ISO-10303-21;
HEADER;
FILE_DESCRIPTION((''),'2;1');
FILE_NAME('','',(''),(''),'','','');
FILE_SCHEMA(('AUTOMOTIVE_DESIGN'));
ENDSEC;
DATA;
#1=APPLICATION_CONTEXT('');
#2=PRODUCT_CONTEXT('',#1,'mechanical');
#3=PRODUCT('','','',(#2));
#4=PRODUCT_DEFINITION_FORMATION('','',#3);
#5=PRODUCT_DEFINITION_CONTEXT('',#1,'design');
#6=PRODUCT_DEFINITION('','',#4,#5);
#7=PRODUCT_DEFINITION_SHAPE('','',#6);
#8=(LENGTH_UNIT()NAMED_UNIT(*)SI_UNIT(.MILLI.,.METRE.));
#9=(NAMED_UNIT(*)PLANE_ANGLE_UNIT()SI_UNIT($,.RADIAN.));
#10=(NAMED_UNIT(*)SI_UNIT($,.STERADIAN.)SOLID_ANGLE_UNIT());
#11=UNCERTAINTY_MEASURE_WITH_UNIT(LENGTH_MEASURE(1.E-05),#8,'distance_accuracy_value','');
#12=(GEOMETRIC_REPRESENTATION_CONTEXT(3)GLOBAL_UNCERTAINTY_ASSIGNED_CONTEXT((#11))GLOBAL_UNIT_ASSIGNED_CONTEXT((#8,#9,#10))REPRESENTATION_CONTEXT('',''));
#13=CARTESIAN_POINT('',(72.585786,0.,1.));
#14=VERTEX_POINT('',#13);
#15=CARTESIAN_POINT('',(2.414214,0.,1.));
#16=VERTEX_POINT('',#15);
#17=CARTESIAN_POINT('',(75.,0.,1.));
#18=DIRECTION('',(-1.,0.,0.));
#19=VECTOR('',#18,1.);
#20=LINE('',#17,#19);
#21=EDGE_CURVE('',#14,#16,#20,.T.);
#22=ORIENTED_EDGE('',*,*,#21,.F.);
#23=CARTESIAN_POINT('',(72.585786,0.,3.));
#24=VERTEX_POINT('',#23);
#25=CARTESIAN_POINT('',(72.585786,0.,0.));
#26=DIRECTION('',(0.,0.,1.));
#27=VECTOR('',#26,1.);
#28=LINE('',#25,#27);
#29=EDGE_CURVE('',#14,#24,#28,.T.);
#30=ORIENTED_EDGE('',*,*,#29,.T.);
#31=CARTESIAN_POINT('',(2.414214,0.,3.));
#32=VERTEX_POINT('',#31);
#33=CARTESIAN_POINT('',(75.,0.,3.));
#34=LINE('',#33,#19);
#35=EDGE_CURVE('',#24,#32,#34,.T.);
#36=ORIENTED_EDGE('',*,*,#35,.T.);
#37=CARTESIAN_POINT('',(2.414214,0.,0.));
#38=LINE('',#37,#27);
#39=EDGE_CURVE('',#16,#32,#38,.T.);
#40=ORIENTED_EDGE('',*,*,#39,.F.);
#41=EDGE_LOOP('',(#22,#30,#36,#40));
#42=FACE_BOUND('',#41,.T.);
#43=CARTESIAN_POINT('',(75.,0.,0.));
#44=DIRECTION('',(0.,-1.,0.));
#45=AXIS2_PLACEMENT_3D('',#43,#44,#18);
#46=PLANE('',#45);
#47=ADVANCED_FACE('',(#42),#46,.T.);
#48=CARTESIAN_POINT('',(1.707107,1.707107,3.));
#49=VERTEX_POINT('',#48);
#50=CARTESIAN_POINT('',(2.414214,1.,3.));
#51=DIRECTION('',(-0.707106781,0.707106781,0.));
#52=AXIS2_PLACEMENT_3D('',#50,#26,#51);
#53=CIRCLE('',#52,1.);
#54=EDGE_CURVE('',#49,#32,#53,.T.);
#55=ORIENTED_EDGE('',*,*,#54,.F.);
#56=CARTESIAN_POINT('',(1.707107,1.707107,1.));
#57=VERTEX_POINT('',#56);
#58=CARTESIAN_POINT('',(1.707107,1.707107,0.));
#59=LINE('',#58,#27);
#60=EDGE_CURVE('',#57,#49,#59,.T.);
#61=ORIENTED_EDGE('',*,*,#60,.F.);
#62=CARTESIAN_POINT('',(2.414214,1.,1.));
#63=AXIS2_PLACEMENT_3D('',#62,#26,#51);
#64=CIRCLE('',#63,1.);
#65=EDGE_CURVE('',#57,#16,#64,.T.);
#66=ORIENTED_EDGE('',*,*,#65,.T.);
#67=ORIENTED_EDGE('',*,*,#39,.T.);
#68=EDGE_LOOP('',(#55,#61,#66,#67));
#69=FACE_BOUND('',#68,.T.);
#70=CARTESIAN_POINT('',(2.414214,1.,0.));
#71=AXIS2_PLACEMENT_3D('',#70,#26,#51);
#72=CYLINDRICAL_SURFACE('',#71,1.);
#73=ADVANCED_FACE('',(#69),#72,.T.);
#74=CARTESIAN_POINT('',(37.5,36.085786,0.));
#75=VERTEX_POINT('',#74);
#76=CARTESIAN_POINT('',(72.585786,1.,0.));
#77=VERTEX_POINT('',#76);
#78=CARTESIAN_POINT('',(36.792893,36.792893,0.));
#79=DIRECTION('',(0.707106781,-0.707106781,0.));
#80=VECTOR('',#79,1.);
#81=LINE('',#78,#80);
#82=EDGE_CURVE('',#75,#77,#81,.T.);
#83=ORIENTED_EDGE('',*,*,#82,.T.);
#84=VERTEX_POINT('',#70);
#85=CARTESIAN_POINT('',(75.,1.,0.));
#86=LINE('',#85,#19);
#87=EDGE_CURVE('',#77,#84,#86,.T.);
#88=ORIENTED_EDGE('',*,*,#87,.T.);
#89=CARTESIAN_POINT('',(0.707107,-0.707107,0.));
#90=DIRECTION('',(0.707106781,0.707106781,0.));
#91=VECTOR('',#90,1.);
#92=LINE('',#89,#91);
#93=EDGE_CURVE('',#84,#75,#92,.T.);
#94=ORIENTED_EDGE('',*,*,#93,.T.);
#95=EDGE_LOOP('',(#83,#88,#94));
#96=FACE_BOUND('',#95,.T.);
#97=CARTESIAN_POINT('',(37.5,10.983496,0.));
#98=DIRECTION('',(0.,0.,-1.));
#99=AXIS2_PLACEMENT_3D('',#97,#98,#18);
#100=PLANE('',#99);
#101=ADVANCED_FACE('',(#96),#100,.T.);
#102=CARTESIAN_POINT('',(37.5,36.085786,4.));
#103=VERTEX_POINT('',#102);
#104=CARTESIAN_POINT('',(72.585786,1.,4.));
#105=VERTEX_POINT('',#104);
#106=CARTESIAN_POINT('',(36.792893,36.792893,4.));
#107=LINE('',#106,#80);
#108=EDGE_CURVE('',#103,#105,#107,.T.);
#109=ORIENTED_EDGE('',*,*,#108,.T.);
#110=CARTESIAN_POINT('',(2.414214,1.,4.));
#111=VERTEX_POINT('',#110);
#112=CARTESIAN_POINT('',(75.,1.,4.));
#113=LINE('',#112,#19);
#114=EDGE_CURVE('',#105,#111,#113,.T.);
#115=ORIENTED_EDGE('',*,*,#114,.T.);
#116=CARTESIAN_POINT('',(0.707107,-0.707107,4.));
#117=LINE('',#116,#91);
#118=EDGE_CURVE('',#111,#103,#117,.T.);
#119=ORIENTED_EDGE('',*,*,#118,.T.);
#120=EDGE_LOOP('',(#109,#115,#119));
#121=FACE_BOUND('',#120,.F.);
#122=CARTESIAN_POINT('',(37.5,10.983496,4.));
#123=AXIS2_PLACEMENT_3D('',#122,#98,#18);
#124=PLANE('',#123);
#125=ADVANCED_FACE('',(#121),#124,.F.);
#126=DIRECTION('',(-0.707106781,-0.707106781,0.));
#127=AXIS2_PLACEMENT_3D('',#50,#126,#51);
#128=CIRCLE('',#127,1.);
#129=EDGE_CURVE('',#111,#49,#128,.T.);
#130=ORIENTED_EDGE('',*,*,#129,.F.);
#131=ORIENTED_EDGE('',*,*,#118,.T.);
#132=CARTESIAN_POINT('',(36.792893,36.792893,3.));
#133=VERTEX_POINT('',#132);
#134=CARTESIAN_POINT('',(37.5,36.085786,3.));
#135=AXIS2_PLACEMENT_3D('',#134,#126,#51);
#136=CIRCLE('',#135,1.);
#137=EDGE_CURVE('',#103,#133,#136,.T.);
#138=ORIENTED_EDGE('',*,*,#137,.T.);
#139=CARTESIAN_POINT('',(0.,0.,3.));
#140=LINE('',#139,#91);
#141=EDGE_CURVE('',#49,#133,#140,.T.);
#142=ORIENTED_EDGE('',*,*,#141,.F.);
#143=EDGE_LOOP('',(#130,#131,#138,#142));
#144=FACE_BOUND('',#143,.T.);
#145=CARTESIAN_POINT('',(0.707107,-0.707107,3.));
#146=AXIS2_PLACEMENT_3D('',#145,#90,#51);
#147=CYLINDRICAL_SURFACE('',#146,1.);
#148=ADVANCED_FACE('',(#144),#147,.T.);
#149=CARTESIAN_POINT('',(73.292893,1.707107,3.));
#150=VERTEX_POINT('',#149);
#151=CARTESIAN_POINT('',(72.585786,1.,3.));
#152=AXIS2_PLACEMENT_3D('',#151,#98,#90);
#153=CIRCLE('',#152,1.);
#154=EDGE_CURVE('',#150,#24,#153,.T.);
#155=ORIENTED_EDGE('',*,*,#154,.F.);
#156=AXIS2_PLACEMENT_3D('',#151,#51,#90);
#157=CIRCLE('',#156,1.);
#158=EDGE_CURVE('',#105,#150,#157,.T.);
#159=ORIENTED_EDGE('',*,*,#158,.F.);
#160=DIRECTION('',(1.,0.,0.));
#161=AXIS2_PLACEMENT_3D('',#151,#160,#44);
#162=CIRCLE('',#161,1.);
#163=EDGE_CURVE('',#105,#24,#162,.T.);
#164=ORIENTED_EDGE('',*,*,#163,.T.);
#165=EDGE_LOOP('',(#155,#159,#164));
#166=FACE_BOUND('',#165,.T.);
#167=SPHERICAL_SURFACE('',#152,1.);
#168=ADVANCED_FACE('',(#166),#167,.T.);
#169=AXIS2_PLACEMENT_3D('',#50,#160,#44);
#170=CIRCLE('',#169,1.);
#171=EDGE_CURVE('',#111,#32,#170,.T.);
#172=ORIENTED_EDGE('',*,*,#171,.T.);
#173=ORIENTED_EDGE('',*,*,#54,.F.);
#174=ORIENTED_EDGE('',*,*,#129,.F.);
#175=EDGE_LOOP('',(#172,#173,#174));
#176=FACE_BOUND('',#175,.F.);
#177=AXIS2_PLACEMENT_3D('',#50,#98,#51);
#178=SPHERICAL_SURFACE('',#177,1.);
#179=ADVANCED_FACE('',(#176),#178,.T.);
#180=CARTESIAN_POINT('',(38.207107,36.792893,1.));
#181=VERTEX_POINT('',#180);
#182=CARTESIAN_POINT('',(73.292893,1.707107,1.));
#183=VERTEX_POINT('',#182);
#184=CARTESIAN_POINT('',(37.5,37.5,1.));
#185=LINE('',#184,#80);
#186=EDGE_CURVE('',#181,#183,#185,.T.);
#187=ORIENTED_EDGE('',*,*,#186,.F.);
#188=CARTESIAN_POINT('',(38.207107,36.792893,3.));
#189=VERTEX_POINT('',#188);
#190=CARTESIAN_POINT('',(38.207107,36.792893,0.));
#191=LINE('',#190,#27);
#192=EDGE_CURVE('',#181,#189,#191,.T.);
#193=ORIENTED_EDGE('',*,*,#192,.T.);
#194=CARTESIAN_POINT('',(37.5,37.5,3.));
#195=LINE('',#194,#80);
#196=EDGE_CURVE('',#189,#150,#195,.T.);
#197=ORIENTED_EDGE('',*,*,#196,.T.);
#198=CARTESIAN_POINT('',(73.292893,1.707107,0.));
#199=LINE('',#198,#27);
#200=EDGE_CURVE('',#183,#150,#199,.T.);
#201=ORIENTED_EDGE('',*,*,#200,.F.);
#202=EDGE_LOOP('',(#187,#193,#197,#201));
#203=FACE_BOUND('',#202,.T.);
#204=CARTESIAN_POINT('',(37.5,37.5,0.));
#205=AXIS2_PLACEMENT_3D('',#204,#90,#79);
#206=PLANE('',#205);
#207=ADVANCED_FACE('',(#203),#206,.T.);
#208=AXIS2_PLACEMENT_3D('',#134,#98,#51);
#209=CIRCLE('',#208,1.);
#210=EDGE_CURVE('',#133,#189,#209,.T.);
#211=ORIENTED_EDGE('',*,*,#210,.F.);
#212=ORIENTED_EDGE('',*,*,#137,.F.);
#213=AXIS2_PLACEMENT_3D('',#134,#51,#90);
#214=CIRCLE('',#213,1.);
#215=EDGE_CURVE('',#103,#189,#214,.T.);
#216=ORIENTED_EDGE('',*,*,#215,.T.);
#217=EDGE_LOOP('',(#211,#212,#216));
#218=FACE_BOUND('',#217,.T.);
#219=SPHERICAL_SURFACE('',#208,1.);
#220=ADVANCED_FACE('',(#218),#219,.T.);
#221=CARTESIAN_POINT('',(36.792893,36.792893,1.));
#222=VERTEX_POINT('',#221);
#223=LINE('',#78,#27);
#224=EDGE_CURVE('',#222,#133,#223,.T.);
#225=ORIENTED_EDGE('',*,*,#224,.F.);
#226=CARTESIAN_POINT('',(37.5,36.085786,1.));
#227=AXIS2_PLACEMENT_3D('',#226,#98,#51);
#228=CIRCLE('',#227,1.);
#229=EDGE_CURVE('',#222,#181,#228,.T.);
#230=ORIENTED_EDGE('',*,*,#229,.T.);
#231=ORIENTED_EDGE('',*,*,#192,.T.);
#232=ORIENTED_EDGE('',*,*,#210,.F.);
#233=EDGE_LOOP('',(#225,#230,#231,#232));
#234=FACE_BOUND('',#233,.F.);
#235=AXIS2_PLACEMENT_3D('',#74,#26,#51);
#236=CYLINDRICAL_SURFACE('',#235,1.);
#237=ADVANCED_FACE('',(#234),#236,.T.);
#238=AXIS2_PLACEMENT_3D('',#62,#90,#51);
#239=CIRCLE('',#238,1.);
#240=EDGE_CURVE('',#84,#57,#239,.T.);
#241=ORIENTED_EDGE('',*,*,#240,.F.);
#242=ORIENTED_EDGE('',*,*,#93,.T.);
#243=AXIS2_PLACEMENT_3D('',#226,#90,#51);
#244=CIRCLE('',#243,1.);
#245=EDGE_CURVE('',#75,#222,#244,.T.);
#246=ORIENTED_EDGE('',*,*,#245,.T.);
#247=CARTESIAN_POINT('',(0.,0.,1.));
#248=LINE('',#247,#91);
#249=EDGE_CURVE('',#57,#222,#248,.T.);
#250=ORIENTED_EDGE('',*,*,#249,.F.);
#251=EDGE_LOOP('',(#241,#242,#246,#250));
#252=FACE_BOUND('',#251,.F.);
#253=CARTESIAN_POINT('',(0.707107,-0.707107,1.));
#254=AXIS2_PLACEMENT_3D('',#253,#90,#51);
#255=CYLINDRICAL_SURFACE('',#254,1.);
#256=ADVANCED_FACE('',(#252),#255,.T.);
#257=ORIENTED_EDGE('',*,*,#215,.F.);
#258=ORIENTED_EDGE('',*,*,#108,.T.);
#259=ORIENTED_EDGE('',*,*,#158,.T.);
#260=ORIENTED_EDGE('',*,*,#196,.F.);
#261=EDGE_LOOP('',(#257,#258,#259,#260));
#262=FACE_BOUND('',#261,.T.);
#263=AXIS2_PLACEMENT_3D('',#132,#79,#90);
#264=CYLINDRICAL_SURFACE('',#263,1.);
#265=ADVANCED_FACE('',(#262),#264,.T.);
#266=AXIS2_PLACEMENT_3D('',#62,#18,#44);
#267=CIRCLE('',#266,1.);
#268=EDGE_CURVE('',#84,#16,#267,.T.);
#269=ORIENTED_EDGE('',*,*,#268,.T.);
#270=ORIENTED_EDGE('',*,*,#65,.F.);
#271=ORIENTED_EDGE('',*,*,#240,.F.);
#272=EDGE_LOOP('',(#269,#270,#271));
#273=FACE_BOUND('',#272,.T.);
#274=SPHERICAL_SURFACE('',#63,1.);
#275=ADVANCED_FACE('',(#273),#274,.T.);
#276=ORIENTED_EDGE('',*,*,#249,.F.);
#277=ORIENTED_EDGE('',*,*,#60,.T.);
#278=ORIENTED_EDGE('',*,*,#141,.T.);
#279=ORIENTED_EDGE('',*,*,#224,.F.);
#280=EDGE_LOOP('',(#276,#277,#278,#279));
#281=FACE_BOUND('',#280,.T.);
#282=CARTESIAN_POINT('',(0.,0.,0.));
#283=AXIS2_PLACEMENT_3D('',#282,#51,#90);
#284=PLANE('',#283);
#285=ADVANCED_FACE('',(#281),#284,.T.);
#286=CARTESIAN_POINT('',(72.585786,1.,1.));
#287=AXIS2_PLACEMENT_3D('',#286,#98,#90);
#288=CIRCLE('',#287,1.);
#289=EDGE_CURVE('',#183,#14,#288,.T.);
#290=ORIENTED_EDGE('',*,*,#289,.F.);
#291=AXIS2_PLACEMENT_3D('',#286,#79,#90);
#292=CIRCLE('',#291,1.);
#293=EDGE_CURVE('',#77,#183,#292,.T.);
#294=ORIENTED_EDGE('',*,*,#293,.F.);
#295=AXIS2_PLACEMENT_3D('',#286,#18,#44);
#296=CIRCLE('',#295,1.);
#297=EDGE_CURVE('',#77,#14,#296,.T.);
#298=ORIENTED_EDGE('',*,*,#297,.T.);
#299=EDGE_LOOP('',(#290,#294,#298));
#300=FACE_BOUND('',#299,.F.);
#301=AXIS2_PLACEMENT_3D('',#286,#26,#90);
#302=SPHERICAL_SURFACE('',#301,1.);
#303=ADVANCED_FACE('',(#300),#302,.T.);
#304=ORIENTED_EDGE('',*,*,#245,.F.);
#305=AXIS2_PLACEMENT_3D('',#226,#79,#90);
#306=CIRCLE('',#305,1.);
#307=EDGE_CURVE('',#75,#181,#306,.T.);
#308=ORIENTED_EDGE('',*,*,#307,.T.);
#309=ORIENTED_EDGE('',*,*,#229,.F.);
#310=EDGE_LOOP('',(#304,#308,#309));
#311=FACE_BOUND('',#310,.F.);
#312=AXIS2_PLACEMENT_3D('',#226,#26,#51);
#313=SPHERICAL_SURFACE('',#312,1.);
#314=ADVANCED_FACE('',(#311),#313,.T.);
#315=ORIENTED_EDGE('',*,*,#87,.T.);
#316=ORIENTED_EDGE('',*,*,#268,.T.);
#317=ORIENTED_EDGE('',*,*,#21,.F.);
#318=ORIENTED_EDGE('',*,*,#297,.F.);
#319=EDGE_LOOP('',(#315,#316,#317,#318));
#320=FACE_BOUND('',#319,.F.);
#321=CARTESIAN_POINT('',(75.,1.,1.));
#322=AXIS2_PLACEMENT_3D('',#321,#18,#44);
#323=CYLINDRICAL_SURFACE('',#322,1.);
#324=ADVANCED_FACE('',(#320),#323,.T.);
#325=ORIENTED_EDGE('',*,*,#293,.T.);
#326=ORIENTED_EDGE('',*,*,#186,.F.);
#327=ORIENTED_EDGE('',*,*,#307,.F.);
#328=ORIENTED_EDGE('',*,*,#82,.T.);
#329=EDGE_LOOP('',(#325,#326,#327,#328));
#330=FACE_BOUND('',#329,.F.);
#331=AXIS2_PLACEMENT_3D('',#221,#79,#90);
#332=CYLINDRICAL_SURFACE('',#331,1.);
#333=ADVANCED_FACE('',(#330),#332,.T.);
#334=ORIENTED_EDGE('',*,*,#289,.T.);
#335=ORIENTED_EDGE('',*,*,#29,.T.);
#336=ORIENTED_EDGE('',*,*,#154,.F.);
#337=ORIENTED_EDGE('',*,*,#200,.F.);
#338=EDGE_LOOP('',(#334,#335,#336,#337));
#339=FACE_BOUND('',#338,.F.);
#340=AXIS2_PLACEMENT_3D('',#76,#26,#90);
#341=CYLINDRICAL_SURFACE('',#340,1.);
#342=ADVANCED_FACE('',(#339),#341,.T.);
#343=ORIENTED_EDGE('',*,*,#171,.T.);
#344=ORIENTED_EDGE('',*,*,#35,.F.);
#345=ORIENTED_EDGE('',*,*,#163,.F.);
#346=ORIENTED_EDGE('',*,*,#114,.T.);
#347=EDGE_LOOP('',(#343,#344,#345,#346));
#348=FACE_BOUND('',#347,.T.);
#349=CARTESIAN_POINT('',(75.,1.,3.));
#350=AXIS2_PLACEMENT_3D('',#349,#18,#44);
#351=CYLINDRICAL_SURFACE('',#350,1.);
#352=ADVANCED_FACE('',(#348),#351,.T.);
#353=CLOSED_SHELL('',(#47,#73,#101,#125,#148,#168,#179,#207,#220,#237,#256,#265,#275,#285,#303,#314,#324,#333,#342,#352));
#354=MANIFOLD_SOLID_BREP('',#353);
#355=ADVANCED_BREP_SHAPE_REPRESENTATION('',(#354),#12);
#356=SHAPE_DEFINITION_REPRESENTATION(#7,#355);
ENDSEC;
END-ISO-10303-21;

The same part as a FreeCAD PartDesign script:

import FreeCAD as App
import Part
import Sketcher

V = App.Vector

doc = App.newDocument("Part")
body = doc.addObject("PartDesign::Body", "Body")

# Sketch on XY plane
sketch1 = body.newObject("Sketcher::SketchObject", "Sketch")
sketch1.AttachmentSupport = (doc.getObject("XY_Plane"), [""])
sketch1.MapMode = "FlatFace"
sketch1.addGeometry(Part.LineSegment(V(37.5, 37.5, 0), V(0, 0, 0)), False)
sketch1.addGeometry(Part.LineSegment(V(0, 0, 0), V(75, 0, 0)), False)
sketch1.addGeometry(Part.LineSegment(V(75, 0, 0), V(37.5, 37.5, 0)), False)
sketch1.addConstraint(Sketcher.Constraint("Coincident", 0, 2, 1, 1))
sketch1.addConstraint(Sketcher.Constraint("Coincident", 1, 2, 2, 1))
sketch1.addConstraint(Sketcher.Constraint("Coincident", 2, 2, 0, 1))
sketch1.addConstraint(Sketcher.Constraint("Horizontal", 1))
sketch1.addConstraint(Sketcher.Constraint("Coincident", 0, 2, -1, 1))
sketch1.addConstraint(Sketcher.Constraint("Perpendicular", 0, 2))
sketch1.addConstraint(Sketcher.Constraint("Equal", 0, 2))
sketch1.addConstraint(Sketcher.Constraint("DistanceX", 1, 1, 1, 2, 75.0))
pad1 = body.newObject("PartDesign::Pad", "Pad")
pad1.Profile = sketch1
pad1.Length = 4
doc.recompute()

fillet = body.newObject("PartDesign::Fillet", "Fillet")
fillet.Base = (pad1, ["Edge1"])
fillet.UseAllEdges = True
fillet.Radius = 1

doc.recompute()
